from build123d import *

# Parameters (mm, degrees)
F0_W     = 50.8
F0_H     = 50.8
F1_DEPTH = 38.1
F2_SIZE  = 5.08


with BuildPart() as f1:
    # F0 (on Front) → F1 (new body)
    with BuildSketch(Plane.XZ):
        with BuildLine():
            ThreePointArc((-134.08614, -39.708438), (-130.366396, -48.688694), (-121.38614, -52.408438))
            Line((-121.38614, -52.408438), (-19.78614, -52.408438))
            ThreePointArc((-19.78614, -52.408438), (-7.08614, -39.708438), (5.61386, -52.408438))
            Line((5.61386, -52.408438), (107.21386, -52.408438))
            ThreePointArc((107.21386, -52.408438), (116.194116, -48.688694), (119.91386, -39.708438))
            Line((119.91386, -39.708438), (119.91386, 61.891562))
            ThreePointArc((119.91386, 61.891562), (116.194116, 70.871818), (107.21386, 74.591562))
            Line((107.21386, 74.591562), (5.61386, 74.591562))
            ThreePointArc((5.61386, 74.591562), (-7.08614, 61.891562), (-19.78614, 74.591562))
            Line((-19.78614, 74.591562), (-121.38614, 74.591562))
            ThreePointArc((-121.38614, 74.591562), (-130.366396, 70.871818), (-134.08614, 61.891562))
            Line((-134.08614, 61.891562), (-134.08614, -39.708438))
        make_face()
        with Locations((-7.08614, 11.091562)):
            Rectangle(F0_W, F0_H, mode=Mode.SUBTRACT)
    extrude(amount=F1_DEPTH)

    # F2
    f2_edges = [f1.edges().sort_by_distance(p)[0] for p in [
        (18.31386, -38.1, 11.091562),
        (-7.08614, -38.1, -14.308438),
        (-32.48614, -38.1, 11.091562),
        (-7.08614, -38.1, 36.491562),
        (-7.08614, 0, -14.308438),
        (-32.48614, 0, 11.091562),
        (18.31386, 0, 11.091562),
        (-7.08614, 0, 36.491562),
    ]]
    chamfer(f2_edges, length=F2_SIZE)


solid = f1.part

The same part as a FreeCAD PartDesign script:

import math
import FreeCAD as App
import Part
import Sketcher
from FreeCAD import Vector
Q = App.Units.Quantity


def edges_at(feature, points):
    """Names of the edges that pass closest to the given points."""
    edges = feature.Shape.Edges
    near = lambda p: min(range(len(edges)), key=lambda i: edges[i].distToShape(Part.Vertex(*p))[0])
    return sorted({f"Edge{near(p) + 1}" for p in points})


def add_polygon(sketch, points):
    """Adds a closed chain of lines whose ends are joined by coincident constraints."""
    first, n = sketch.GeometryCount, len(points)
    for a, b in zip(points, points[1:] + points[:1]):
        sketch.addGeometry(Part.LineSegment(App.Vector(*a, 0), App.Vector(*b, 0)), False)
    for i in range(n):
        sketch.addConstraint(Sketcher.Constraint("Coincident", first + i, 2, first + (i + 1) % n, 1))

doc = App.newDocument("Part")
body = doc.addObject("PartDesign::Body", "Body")

# Sketch on XZ plane
sketch1 = body.newObject("Sketcher::SketchObject", "Sketch")
sketch1.AttachmentSupport = (doc.getObject("XZ_Plane"), [""])
sketch1.MapMode = "FlatFace"
sketch1.addGeometry(Part.ArcOfCircle(Part.Circle(Vector(-121.38614, -39.708438, 0), Vector(0, 0, 1), 12.7), math.radians(-179.999998), math.radians(-90.000002)), False)  # 0
sketch1.addGeometry(Part.LineSegment(Vector(-121.38614, -52.408438, 0), Vector(-19.78614, -52.408438, 0)), False)  # 1
sketch1.addGeometry(Part.ArcOfCircle(Part.Circle(Vector(-7.08614, -52.408438, 0), Vector(0, 0, 1), 12.7), math.radians(0), math.radians(180)), False)  # 2
sketch1.addGeometry(Part.LineSegment(Vector(5.61386, -52.408438, 0), Vector(107.21386, -52.408438, 0)), False)  # 3
sketch1.addGeometry(Part.ArcOfCircle(Part.Circle(Vector(107.21386, -39.708438, 0), Vector(0, 0, 1), 12.7), math.radians(-89.999998), math.radians(-0.000002)), False)  # 4
sketch1.addGeometry(Part.LineSegment(Vector(119.91386, -39.708438, 0), Vector(119.91386, 61.891562, 0)), False)  # 5
sketch1.addGeometry(Part.ArcOfCircle(Part.Circle(Vector(107.21386, 61.891562, 0), Vector(0, 0, 1), 12.7), math.radians(0.000002), math.radians(89.999998)), False)  # 6
sketch1.addGeometry(Part.LineSegment(Vector(107.21386, 74.591562, 0), Vector(5.61386, 74.591562, 0)), False)  # 7
sketch1.addGeometry(Part.ArcOfCircle(Part.Circle(Vector(-7.08614, 74.591562, 0), Vector(0, 0, 1), 12.7), math.radians(180), math.radians(360)), False)  # 8
sketch1.addGeometry(Part.LineSegment(Vector(-19.78614, 74.591562, 0), Vector(-121.38614, 74.591562, 0)), False)  # 9
sketch1.addGeometry(Part.ArcOfCircle(Part.Circle(Vector(-121.38614, 61.891562, 0), Vector(0, 0, 1), 12.7), math.radians(90.000002), math.radians(179.999998)), False)  # 10
sketch1.addGeometry(Part.LineSegment(Vector(-134.08614, 61.891562, 0), Vector(-134.08614, -39.708438, 0)), False)  # 11
add_polygon(sketch1, [(18.31386, -14.308438), (-32.48614, -14.308438), (-32.48614, 36.491562), (18.31386, 36.491562)])  # lines 12-15
sketch1.addConstraint([
    Sketcher.Constraint("Tangent", 0, 2, 1, 1),
    Sketcher.Constraint("Coincident", 1, 2, 2, 2),
    Sketcher.Constraint("Coincident", 2, 1, 3, 1),
    Sketcher.Constraint("Tangent", 3, 2, 4, 1),
    Sketcher.Constraint("Tangent", 4, 2, 5, 1),
    Sketcher.Constraint("Tangent", 5, 2, 6, 1),
    Sketcher.Constraint("Tangent", 6, 2, 7, 1),
    Sketcher.Constraint("Coincident", 7, 2, 8, 2),
    Sketcher.Constraint("Coincident", 8, 1, 9, 1),
    Sketcher.Constraint("Tangent", 9, 2, 10, 1),
    Sketcher.Constraint("Tangent", 10, 2, 11, 1),
    Sketcher.Constraint("Tangent", 11, 2, 0, 1),
    Sketcher.Constraint("Horizontal", 1),
    Sketcher.Constraint("Horizontal", 3),
    Sketcher.Constraint("Vertical", 5),
    Sketcher.Constraint("Horizontal", 7),
    Sketcher.Constraint("Horizontal", 9),
    Sketcher.Constraint("Vertical", 11),
    Sketcher.Constraint("Horizontal", 12),
    Sketcher.Constraint("Vertical", 13),
    Sketcher.Constraint("Horizontal", 14),
    Sketcher.Constraint("Vertical", 15),
    Sketcher.Constraint("Equal", 0, 2),
    Sketcher.Constraint("Equal", 2, 4),
    Sketcher.Constraint("Equal", 4, 6),
    Sketcher.Constraint("Equal", 6, 8),
    Sketcher.Constraint("Equal", 8, 10),
    Sketcher.Constraint("Horizontal", 0, 3, 4, 3),
    Sketcher.Constraint("Horizontal", 6, 3, 10, 3),
    Sketcher.Constraint("Horizontal", 2, 3, 0, 2),
    Sketcher.Constraint("Horizontal", 8, 3, 6, 2),
    Sketcher.Constraint("Vertical", 2, 3, 8, 3),
    Sketcher.Constraint("Equal", 1, 3),
    Sketcher.Constraint("Equal", 9, 5),
    Sketcher.Constraint("Equal", 14, 13),
    Sketcher.Constraint("Radius", 0, Q("0.5 in")),
    Sketcher.Constraint("DistanceX", 1, 1, 1, 2, Q("4 in")),
    Sketcher.Constraint("DistanceX", 12, 2, 12, 1, Q("2 in")),
    Sketcher.Constraint("DistanceX", 12, 2, 2, 3, Q("1 in")),
    Sketcher.Constraint("DistanceY", 0, 3, 12, 2, Q("1 in")),
    Sketcher.Constraint("DistanceX", 0, 3, -1, 1, 121.38614),
    Sketcher.Constraint("DistanceY", -1, 1, 6, 3, 61.891562),
])
pad1 = body.newObject("PartDesign::Pad", "Pad")
pad1.Profile = sketch1
pad1.Length = Q("1.5 in")
doc.recompute()

chamfer = body.newObject("PartDesign::Chamfer", "Chamfer")
chamfer.Base = (pad1, edges_at(pad1, [
    (18.314, -38.1, 11.092),
    (-7.086, -38.1, -14.308),
    (-32.486, -38.1, 11.092),
    (-7.086, -38.1, 36.492),
    (-7.086, 0, -14.308),
    (-32.486, 0, 11.092),
    (18.314, 0, 11.092),
    (-7.086, 0, 36.492),
]))
chamfer.Size = Q("0.2 in")

doc.recompute()
